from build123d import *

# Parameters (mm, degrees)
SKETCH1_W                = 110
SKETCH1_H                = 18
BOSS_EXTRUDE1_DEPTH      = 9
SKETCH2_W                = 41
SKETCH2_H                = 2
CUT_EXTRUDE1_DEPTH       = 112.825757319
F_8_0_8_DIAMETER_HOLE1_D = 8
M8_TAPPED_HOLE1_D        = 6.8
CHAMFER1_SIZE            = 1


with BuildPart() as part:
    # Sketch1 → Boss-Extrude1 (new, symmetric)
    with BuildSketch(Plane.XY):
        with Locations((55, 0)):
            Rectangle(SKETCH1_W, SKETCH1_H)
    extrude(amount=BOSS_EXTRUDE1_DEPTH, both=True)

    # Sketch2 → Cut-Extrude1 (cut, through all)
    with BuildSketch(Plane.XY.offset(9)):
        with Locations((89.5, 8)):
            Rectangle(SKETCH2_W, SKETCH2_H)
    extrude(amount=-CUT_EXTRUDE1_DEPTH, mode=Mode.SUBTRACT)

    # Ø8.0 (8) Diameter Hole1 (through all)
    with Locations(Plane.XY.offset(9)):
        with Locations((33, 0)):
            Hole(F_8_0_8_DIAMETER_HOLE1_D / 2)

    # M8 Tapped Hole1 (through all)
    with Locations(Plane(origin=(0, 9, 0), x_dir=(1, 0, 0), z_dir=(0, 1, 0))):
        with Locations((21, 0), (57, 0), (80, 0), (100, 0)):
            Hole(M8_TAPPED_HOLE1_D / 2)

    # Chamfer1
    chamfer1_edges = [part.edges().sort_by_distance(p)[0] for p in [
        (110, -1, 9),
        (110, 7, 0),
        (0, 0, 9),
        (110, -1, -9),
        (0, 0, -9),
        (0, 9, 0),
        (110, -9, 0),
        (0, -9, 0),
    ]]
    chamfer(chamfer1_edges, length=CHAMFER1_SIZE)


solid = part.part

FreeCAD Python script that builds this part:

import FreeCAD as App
import Part
import Sketcher
from FreeCAD import Vector


def edges_at(feature, points):
    """Names of the edges that pass closest to the given points."""
    edges = feature.Shape.Edges
    near = lambda p: min(range(len(edges)), key=lambda i: edges[i].distToShape(Part.Vertex(*p))[0])
    return sorted({f"Edge{near(p) + 1}" for p in points})


def add_polygon(sketch, points):
    """Adds a closed chain of lines whose ends are joined by coincident constraints."""
    first, n = sketch.GeometryCount, len(points)
    for a, b in zip(points, points[1:] + points[:1]):
        sketch.addGeometry(Part.LineSegment(App.Vector(*a, 0), App.Vector(*b, 0)), False)
    for i in range(n):
        sketch.addConstraint(Sketcher.Constraint("Coincident", first + i, 2, first + (i + 1) % n, 1))

doc = App.newDocument("Part")
body = doc.addObject("PartDesign::Body", "Body")

# Sketch on XY plane
sketch1 = doc.addObject("Sketcher::SketchObject", "Sketch")
body.addObject(sketch1)
sketch1.AttachmentSupport = (doc.XY_Plane, [""])
sketch1.MapMode = "FlatFace"
add_polygon(sketch1, [(0, 9), (0, -9), (110, -9), (110, 9)])  # lines 0-3
sketch1.addConstraint(Sketcher.Constraint("Vertical", 0))
sketch1.addConstraint(Sketcher.Constraint("Horizontal", 1))
sketch1.addConstraint(Sketcher.Constraint("Vertical", 2))
sketch1.addConstraint(Sketcher.Constraint("Horizontal", 3))
sketch1.addConstraint(Sketcher.Constraint("Symmetric", 0, 2, 3, 2, -1, 1))
sketch1.addConstraint(Sketcher.Constraint("DistanceX", 1, 1, 1, 2, 110.0))
sketch1.addConstraint(Sketcher.Constraint("DistanceY", 0, 2, 0, 1, 18.0))
pad1 = doc.addObject("PartDesign::Pad", "Pad")
body.addObject(pad1)
pad1.Profile = sketch1
pad1.Length = 18
pad1.Midplane = True

# Sketch on XY plane
sketch2 = doc.addObject("Sketcher::SketchObject", "Sketch001")
body.addObject(sketch2)
sketch2.AttachmentSupport = (doc.XY_Plane, [""])
sketch2.MapMode = "FlatFace"
sketch2.AttachmentOffset = App.Placement(Vector(0, 0, 9), App.Rotation())
add_polygon(sketch2, [(69, 9), (69, 7), (110, 7), (110, 9)])  # lines 0-3
sketch2.addConstraint(Sketcher.Constraint("Vertical", 0))
sketch2.addConstraint(Sketcher.Constraint("Horizontal", 1))
sketch2.addConstraint(Sketcher.Constraint("Vertical", 2))
sketch2.addConstraint(Sketcher.Constraint("Horizontal", 3))
sketch2.addConstraint(Sketcher.Constraint("DistanceX", 1, 1, 1, 2, 41.0))
sketch2.addConstraint(Sketcher.Constraint("DistanceY", 0, 2, 0, 1, 2.0))
sketch2.addConstraint(Sketcher.Constraint("DistanceX", -1, 1, 0, 2, 69.0))
sketch2.addConstraint(Sketcher.Constraint("DistanceY", -1, 1, 0, 2, 7.0))
pocket1 = doc.addObject("PartDesign::Pocket", "Pocket")
body.addObject(pocket1)
pocket1.Profile = sketch2
pocket1.Type = "ThroughAll"

# Sketch on XY plane
sketch3 = doc.addObject("Sketcher::SketchObject", "Sketch002")
body.addObject(sketch3)
sketch3.AttachmentSupport = (doc.XY_Plane, [""])
sketch3.MapMode = "FlatFace"
sketch3.AttachmentOffset = App.Placement(Vector(0, 0, 9), App.Rotation())
sketch3.addGeometry(Part.Circle(Vector(33, 0, 0), Vector(0, 0, 1), 4), False)
sketch3.addConstraint(Sketcher.Constraint("PointOnObject", 0, 3, -1))
sketch3.addConstraint(Sketcher.Constraint("Diameter", 0, 8.0))
sketch3.addConstraint(Sketcher.Constraint("DistanceX", -1, 1, 0, 3, 33.0))
doc.recompute()
hole = doc.addObject("PartDesign::Hole", "Hole")
body.addObject(hole)
hole.Profile = sketch3
hole.ThreadType = "None"
hole.Diameter = 8
hole.DepthType = "ThroughAll"

# Sketch on XZ plane
sketch4 = doc.addObject("Sketcher::SketchObject", "Sketch003")
body.addObject(sketch4)
sketch4.AttachmentSupport = (doc.XZ_Plane, [""])
sketch4.MapMode = "FlatFace"
sketch4.AttachmentOffset = App.Placement(Vector(0, 0, -9), App.Rotation())
sketch4.addGeometry(Part.Circle(Vector(21, 0, 0), Vector(0, 0, 1), 3.4), False)
sketch4.addGeometry(Part.Circle(Vector(57, 0, 0), Vector(0, 0, 1), 3.4), False)
sketch4.addGeometry(Part.Circle(Vector(80, 0, 0), Vector(0, 0, 1), 3.4), False)
sketch4.addGeometry(Part.Circle(Vector(100, 0, 0), Vector(0, 0, 1), 3.4), False)
sketch4.addConstraint(Sketcher.Constraint("Equal", 0, 1))
sketch4.addConstraint(Sketcher.Constraint("Equal", 1, 2))
sketch4.addConstraint(Sketcher.Constraint("Equal", 2, 3))
sketch4.addConstraint(Sketcher.Constraint("PointOnObject", 0, 3, -1))
sketch4.addConstraint(Sketcher.Constraint("PointOnObject", 1, 3, -1))
sketch4.addConstraint(Sketcher.Constraint("PointOnObject", 2, 3, -1))
sketch4.addConstraint(Sketcher.Constraint("PointOnObject", 3, 3, -1))
sketch4.addConstraint(Sketcher.Constraint("Diameter", 0, 6.8))
sketch4.addConstraint(Sketcher.Constraint("DistanceX", -1, 1, 0, 3, 21.0))
sketch4.addConstraint(Sketcher.Constraint("DistanceX", -1, 1, 1, 3, 57.0))
sketch4.addConstraint(Sketcher.Constraint("DistanceX", -1, 1, 2, 3, 80.0))
sketch4.addConstraint(Sketcher.Constraint("DistanceX", -1, 1, 3, 3, 100.0))
doc.recompute()
hole2 = doc.addObject("PartDesign::Hole", "Hole001")
body.addObject(hole2)
hole2.Profile = sketch4
hole2.ThreadType = "None"
hole2.Diameter = 6.8
hole2.DepthType = "ThroughAll"
hole2.Reversed = True
doc.recompute()

chamfer = doc.addObject("PartDesign::Chamfer", "Chamfer")
body.addObject(chamfer)
chamfer.Base = (hole2, edges_at(hole2, [
    (110, -1, 9),
    (110, 7, 0),
    (0, 0, 9),
    (110, -1, -9),
    (0, 0, -9),
    (0, 9, 0),
    (110, -9, 0),
    (0, -9, 0),
]))
chamfer.Size = 1

doc.recompute()
